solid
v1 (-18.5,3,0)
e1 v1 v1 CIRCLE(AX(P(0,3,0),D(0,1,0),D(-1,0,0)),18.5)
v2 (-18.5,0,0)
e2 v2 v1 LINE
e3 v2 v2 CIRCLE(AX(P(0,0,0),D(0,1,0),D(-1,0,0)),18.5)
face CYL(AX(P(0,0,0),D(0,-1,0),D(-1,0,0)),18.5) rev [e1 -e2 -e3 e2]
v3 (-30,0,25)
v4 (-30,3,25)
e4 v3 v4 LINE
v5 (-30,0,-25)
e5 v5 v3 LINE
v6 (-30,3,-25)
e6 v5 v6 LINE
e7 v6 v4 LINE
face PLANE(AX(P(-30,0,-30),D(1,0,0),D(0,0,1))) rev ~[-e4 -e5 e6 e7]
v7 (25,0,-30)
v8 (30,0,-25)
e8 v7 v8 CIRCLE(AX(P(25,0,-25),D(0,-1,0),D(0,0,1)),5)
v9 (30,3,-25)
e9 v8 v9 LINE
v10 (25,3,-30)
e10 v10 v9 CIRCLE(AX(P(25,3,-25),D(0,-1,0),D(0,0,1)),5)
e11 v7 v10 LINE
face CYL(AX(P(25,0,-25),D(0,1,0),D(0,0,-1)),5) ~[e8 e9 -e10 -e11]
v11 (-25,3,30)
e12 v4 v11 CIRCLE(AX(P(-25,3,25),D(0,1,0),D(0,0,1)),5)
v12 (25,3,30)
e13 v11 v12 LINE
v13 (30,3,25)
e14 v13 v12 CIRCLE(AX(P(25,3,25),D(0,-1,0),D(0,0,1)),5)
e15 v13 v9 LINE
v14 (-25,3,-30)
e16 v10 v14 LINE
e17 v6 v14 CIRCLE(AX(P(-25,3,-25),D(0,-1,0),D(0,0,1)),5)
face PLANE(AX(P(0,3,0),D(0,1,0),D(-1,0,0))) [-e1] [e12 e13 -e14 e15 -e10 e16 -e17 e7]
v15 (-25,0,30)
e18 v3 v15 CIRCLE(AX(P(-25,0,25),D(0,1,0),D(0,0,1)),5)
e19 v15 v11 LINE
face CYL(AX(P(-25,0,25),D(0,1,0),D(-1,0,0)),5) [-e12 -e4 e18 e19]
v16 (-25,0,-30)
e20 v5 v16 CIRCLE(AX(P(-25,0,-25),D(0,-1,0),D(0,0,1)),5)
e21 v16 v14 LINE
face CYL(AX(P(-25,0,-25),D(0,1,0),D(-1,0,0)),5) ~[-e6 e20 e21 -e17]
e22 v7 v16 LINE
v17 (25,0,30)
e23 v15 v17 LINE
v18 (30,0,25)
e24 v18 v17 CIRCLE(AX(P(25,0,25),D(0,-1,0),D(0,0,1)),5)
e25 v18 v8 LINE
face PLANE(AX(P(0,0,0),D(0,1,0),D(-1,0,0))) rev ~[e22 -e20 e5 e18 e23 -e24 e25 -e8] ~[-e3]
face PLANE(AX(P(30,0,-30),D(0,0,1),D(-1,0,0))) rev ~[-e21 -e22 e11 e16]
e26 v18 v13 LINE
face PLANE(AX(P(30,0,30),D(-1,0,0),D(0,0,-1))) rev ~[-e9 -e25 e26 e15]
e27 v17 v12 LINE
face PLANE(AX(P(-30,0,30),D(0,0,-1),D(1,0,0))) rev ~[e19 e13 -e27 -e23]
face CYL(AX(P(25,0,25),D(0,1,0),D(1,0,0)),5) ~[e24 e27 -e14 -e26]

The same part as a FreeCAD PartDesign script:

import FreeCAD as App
import Part
import Sketcher
Q = App.Units.Quantity


def edges_at(feature, points):
    """Names of the edges that pass closest to the given points."""
    edges = feature.Shape.Edges
    near = lambda p: min(range(len(edges)), key=lambda i: edges[i].distToShape(Part.Vertex(*p))[0])
    return sorted({f"Edge{near(p) + 1}" for p in points})

doc = App.newDocument("Part")
body = doc.addObject("PartDesign::Body", "Body")

sketch1 = body.newObject("Sketcher::SketchObject", "Sketch")
sketch1.AttachmentSupport = (doc.getObject("XZ_Plane"), [""])
sketch1.MapMode = "FlatFace"
sketch1.addGeometry(Part.LineSegment(App.Vector(-30, -30, 0), App.Vector(-30, 30, 0)), False)
sketch1.addGeometry(Part.LineSegment(App.Vector(-30, 30, 0), App.Vector(30, 30, 0)), False)
sketch1.addGeometry(Part.LineSegment(App.Vector(30, 30, 0), App.Vector(30, -30, 0)), False)
sketch1.addGeometry(Part.LineSegment(App.Vector(30, -30, 0), App.Vector(-30, -30, 0)), False)
sketch1.addGeometry(Part.Circle(App.Vector(0, 0, 0), App.Vector(0, 0, 1), 18.5), False)
sketch1.addConstraint(Sketcher.Constraint("Coincident", 0, 2, 1, 1))
sketch1.addConstraint(Sketcher.Constraint("Coincident", 1, 2, 2, 1))
sketch1.addConstraint(Sketcher.Constraint("Coincident", 2, 2, 3, 1))
sketch1.addConstraint(Sketcher.Constraint("Coincident", 3, 2, 0, 1))
sketch1.addConstraint(Sketcher.Constraint("Vertical", 0))
sketch1.addConstraint(Sketcher.Constraint("Horizontal", 1))
sketch1.addConstraint(Sketcher.Constraint("Vertical", 2))
sketch1.addConstraint(Sketcher.Constraint("Horizontal", 3))
sketch1.addConstraint(Sketcher.Constraint("Coincident", 4, 3, -1, 1))
sketch1.addConstraint(Sketcher.Constraint("Symmetric", 0, 2, 2, 2, -1, 1))
sketch1.addConstraint(Sketcher.Constraint("Equal", 3, 0))
sketch1.addConstraint(Sketcher.Constraint("Diameter", 4, Q("37 mm")))
sketch1.addConstraint(Sketcher.Constraint("DistanceX", 1, 1, 1, 2, Q("60 mm")))
pad1 = body.newObject("PartDesign::Pad", "Pad")
pad1.Profile = sketch1
pad1.Length = 3
pad1.Reversed = True
doc.recompute()

fillet = body.newObject("PartDesign::Fillet", "Fillet")
fillet.Base = (pad1, edges_at(pad1, [
    (30, 1.5, 30),
    (30, 1.5, -30),
    (-30, 1.5, -30),
    (-30, 1.5, 30),
]))
fillet.Radius = 5

doc.recompute()
